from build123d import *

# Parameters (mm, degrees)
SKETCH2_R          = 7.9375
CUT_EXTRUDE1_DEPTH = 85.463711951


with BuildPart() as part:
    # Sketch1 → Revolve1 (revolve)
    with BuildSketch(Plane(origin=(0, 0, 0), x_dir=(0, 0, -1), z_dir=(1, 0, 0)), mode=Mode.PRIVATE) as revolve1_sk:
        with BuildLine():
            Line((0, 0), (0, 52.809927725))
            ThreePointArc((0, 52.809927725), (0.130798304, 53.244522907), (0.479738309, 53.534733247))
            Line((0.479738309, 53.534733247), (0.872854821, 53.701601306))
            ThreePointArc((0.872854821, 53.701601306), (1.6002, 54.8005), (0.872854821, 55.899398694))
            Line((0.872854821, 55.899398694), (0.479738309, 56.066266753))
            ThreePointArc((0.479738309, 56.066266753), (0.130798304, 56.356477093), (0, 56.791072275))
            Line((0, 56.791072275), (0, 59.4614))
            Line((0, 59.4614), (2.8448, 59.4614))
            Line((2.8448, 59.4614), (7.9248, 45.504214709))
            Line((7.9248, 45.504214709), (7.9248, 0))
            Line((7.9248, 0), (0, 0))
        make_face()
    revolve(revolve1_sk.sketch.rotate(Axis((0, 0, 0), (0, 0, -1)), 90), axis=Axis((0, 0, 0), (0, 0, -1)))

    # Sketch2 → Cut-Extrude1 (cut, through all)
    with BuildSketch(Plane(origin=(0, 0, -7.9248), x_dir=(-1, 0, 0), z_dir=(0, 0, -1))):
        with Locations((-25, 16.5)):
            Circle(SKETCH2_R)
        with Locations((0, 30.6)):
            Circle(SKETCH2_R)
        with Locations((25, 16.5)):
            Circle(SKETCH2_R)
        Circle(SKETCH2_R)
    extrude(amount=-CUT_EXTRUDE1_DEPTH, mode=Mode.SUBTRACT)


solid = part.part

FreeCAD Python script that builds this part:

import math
import FreeCAD as App
import Part
import Sketcher
from FreeCAD import Vector
Q = App.Units.Quantity

doc = App.newDocument("Part")
body = doc.addObject("PartDesign::Body", "Body")

# Sketch on YZ plane
sketch1 = body.newObject("Sketcher::SketchObject", "Sketch")
sketch1.AttachmentSupport = (doc.getObject("YZ_Plane"), [""])
sketch1.MapMode = "FlatFace"
sketch1.addGeometry(Part.LineSegment(Vector(52.81, 0, 0), Vector(0, 0, 0)), False)
sketch1.addGeometry(Part.LineSegment(Vector(0, 0, 0), Vector(0, -7.92, 0)), False)
sketch1.addGeometry(Part.LineSegment(Vector(0, -7.92, 0), Vector(45.5, -7.92, 0)), False)
sketch1.addGeometry(Part.LineSegment(Vector(45.5, -7.92, 0), Vector(59.46, -2.84, 0)), False)
sketch1.addGeometry(Part.LineSegment(Vector(59.46, -2.84, 0), Vector(59.46, 0, 0)), False)
sketch1.addGeometry(Part.LineSegment(Vector(59.46, 0, 0), Vector(56.79, 0, 0)), False)
sketch1.addGeometry(Part.ArcOfCircle(Part.Circle(Vector(56.79, -0.79, 0), Vector(0, 0, 1), 0.79), math.radians(90), math.radians(157)), False)
sketch1.addGeometry(Part.LineSegment(Vector(56.07, -0.48, 0), Vector(55.9, -0.87, 0)), False)
sketch1.addGeometry(Part.ArcOfCircle(Part.Circle(Vector(54.8, -0.41, 0), Vector(0, 0, 1), 1.19), math.radians(-157), math.radians(-23)), False)
sketch1.addGeometry(Part.LineSegment(Vector(53.7, -0.87, 0), Vector(53.53, -0.48, 0)), False)
sketch1.addGeometry(Part.ArcOfCircle(Part.Circle(Vector(52.81, -0.79, 0), Vector(0, 0, 1), 0.79), math.radians(23), math.radians(90)), False)
sketch1.addConstraint(Sketcher.Constraint("Coincident", 0, 2, 1, 1))
sketch1.addConstraint(Sketcher.Constraint("Coincident", 1, 2, 2, 1))
sketch1.addConstraint(Sketcher.Constraint("Coincident", 2, 2, 3, 1))
sketch1.addConstraint(Sketcher.Constraint("Coincident", 3, 2, 4, 1))
sketch1.addConstraint(Sketcher.Constraint("Coincident", 4, 2, 5, 1))
sketch1.addConstraint(Sketcher.Constraint("Tangent", 5, 2, 6, 1))
sketch1.addConstraint(Sketcher.Constraint("Tangent", 6, 2, 7, 1))
sketch1.addConstraint(Sketcher.Constraint("Tangent", 7, 2, 8, 2))
sketch1.addConstraint(Sketcher.Constraint("Tangent", 8, 1, 9, 1))
sketch1.addConstraint(Sketcher.Constraint("Tangent", 9, 2, 10, 1))
sketch1.addConstraint(Sketcher.Constraint("Tangent", 10, 2, 0, 1))
sketch1.addConstraint(Sketcher.Constraint("Horizontal", 0))
sketch1.addConstraint(Sketcher.Constraint("Vertical", 1))
sketch1.addConstraint(Sketcher.Constraint("Horizontal", 2))
sketch1.addConstraint(Sketcher.Constraint("Vertical", 4))
sketch1.addConstraint(Sketcher.Constraint("Horizontal", 5))
sketch1.addConstraint(Sketcher.Constraint("Coincident", 0, 2, -1, 1))
sketch1.addConstraint(Sketcher.Constraint("Equal", 6, 10))
sketch1.addConstraint(Sketcher.Constraint("PointOnObject", 4, 2, -1))
sketch1.addConstraint(Sketcher.Constraint("Horizontal", 7, 2, 8, 1))
sketch1.addConstraint(Sketcher.Constraint("Angle", 3, Q("20 deg")))
sketch1.addConstraint(Sketcher.Constraint("Angle", 7, Q("-113 deg")))
sketch1.addConstraint(Sketcher.Constraint("Radius", 6, Q("0.031 in")))
sketch1.addConstraint(Sketcher.Constraint("Radius", 8, Q("0.047 in")))
sketch1.addConstraint(Sketcher.Constraint("DistanceY", 2, 2, 3, 2, Q("0.2 in")))
sketch1.addConstraint(Sketcher.Constraint("DistanceY", 1, 2, 1, 1, Q("0.312 in")))
sketch1.addConstraint(Sketcher.Constraint("DistanceY", 8, 3, -1, 1, Q("0.016 in")))
sketch1.addConstraint(Sketcher.Constraint("DistanceX", -1, 1, 3, 2, Q("2.341 in")))
sketch1.addConstraint(Sketcher.Constraint("DistanceX", -1, 1, 8, 3, Q("2.1575 in")))
revolution = body.newObject("PartDesign::Revolution", "Revolution")
revolution.Profile = sketch1
revolution.ReferenceAxis = (sketch1, ["V_Axis"])
revolution.Angle = 360

# Sketch on XY plane
sketch2 = body.newObject("Sketcher::SketchObject", "Sketch001")
sketch2.AttachmentSupport = (doc.getObject("XY_Plane"), [""])
sketch2.MapMode = "FlatFace"
sketch2.AttachmentOffset = App.Placement(Vector(0, 0, -0.312 * 25.4), App.Rotation())
sketch2.addGeometry(Part.Circle(Vector(25, 16, 0), Vector(0, 0, 1), 8), False)
sketch2.addGeometry(Part.Circle(Vector(0, 31, 0), Vector(0, 0, 1), 8), False)
sketch2.addGeometry(Part.Circle(Vector(-25, 16, 0), Vector(0, 0, 1), 8), False)
sketch2.addGeometry(Part.Circle(Vector(0, 0, 0), Vector(0, 0, 1), 8), False)
sketch2.addConstraint(Sketcher.Constraint("Coincident", 3, 3, -1, 1))
sketch2.addConstraint(Sketcher.Constraint("Equal", 0, 1))
sketch2.addConstraint(Sketcher.Constraint("Equal", 1, 2))
sketch2.addConstraint(Sketcher.Constraint("Equal", 2, 3))
sketch2.addConstraint(Sketcher.Constraint("Symmetric", 0, 3, 2, 3, -2))
sketch2.addConstraint(Sketcher.Constraint("PointOnObject", 1, 3, -2))
sketch2.addConstraint(Sketcher.Constraint("Diameter", 0, Q("0.625 in")))
sketch2.addConstraint(Sketcher.Constraint("DistanceX", -1, 1, 0, 3, Q("25 mm")))
sketch2.addConstraint(Sketcher.Constraint("DistanceY", -1, 1, 0, 3, Q("16.5 mm")))
sketch2.addConstraint(Sketcher.Constraint("DistanceY", -1, 1, 1, 3, Q("30.6 mm")))
pocket1 = body.newObject("PartDesign::Pocket", "Pocket")
pocket1.Profile = sketch2
pocket1.Type = "ThroughAll"
pocket1.Reversed = True

doc.recompute()
